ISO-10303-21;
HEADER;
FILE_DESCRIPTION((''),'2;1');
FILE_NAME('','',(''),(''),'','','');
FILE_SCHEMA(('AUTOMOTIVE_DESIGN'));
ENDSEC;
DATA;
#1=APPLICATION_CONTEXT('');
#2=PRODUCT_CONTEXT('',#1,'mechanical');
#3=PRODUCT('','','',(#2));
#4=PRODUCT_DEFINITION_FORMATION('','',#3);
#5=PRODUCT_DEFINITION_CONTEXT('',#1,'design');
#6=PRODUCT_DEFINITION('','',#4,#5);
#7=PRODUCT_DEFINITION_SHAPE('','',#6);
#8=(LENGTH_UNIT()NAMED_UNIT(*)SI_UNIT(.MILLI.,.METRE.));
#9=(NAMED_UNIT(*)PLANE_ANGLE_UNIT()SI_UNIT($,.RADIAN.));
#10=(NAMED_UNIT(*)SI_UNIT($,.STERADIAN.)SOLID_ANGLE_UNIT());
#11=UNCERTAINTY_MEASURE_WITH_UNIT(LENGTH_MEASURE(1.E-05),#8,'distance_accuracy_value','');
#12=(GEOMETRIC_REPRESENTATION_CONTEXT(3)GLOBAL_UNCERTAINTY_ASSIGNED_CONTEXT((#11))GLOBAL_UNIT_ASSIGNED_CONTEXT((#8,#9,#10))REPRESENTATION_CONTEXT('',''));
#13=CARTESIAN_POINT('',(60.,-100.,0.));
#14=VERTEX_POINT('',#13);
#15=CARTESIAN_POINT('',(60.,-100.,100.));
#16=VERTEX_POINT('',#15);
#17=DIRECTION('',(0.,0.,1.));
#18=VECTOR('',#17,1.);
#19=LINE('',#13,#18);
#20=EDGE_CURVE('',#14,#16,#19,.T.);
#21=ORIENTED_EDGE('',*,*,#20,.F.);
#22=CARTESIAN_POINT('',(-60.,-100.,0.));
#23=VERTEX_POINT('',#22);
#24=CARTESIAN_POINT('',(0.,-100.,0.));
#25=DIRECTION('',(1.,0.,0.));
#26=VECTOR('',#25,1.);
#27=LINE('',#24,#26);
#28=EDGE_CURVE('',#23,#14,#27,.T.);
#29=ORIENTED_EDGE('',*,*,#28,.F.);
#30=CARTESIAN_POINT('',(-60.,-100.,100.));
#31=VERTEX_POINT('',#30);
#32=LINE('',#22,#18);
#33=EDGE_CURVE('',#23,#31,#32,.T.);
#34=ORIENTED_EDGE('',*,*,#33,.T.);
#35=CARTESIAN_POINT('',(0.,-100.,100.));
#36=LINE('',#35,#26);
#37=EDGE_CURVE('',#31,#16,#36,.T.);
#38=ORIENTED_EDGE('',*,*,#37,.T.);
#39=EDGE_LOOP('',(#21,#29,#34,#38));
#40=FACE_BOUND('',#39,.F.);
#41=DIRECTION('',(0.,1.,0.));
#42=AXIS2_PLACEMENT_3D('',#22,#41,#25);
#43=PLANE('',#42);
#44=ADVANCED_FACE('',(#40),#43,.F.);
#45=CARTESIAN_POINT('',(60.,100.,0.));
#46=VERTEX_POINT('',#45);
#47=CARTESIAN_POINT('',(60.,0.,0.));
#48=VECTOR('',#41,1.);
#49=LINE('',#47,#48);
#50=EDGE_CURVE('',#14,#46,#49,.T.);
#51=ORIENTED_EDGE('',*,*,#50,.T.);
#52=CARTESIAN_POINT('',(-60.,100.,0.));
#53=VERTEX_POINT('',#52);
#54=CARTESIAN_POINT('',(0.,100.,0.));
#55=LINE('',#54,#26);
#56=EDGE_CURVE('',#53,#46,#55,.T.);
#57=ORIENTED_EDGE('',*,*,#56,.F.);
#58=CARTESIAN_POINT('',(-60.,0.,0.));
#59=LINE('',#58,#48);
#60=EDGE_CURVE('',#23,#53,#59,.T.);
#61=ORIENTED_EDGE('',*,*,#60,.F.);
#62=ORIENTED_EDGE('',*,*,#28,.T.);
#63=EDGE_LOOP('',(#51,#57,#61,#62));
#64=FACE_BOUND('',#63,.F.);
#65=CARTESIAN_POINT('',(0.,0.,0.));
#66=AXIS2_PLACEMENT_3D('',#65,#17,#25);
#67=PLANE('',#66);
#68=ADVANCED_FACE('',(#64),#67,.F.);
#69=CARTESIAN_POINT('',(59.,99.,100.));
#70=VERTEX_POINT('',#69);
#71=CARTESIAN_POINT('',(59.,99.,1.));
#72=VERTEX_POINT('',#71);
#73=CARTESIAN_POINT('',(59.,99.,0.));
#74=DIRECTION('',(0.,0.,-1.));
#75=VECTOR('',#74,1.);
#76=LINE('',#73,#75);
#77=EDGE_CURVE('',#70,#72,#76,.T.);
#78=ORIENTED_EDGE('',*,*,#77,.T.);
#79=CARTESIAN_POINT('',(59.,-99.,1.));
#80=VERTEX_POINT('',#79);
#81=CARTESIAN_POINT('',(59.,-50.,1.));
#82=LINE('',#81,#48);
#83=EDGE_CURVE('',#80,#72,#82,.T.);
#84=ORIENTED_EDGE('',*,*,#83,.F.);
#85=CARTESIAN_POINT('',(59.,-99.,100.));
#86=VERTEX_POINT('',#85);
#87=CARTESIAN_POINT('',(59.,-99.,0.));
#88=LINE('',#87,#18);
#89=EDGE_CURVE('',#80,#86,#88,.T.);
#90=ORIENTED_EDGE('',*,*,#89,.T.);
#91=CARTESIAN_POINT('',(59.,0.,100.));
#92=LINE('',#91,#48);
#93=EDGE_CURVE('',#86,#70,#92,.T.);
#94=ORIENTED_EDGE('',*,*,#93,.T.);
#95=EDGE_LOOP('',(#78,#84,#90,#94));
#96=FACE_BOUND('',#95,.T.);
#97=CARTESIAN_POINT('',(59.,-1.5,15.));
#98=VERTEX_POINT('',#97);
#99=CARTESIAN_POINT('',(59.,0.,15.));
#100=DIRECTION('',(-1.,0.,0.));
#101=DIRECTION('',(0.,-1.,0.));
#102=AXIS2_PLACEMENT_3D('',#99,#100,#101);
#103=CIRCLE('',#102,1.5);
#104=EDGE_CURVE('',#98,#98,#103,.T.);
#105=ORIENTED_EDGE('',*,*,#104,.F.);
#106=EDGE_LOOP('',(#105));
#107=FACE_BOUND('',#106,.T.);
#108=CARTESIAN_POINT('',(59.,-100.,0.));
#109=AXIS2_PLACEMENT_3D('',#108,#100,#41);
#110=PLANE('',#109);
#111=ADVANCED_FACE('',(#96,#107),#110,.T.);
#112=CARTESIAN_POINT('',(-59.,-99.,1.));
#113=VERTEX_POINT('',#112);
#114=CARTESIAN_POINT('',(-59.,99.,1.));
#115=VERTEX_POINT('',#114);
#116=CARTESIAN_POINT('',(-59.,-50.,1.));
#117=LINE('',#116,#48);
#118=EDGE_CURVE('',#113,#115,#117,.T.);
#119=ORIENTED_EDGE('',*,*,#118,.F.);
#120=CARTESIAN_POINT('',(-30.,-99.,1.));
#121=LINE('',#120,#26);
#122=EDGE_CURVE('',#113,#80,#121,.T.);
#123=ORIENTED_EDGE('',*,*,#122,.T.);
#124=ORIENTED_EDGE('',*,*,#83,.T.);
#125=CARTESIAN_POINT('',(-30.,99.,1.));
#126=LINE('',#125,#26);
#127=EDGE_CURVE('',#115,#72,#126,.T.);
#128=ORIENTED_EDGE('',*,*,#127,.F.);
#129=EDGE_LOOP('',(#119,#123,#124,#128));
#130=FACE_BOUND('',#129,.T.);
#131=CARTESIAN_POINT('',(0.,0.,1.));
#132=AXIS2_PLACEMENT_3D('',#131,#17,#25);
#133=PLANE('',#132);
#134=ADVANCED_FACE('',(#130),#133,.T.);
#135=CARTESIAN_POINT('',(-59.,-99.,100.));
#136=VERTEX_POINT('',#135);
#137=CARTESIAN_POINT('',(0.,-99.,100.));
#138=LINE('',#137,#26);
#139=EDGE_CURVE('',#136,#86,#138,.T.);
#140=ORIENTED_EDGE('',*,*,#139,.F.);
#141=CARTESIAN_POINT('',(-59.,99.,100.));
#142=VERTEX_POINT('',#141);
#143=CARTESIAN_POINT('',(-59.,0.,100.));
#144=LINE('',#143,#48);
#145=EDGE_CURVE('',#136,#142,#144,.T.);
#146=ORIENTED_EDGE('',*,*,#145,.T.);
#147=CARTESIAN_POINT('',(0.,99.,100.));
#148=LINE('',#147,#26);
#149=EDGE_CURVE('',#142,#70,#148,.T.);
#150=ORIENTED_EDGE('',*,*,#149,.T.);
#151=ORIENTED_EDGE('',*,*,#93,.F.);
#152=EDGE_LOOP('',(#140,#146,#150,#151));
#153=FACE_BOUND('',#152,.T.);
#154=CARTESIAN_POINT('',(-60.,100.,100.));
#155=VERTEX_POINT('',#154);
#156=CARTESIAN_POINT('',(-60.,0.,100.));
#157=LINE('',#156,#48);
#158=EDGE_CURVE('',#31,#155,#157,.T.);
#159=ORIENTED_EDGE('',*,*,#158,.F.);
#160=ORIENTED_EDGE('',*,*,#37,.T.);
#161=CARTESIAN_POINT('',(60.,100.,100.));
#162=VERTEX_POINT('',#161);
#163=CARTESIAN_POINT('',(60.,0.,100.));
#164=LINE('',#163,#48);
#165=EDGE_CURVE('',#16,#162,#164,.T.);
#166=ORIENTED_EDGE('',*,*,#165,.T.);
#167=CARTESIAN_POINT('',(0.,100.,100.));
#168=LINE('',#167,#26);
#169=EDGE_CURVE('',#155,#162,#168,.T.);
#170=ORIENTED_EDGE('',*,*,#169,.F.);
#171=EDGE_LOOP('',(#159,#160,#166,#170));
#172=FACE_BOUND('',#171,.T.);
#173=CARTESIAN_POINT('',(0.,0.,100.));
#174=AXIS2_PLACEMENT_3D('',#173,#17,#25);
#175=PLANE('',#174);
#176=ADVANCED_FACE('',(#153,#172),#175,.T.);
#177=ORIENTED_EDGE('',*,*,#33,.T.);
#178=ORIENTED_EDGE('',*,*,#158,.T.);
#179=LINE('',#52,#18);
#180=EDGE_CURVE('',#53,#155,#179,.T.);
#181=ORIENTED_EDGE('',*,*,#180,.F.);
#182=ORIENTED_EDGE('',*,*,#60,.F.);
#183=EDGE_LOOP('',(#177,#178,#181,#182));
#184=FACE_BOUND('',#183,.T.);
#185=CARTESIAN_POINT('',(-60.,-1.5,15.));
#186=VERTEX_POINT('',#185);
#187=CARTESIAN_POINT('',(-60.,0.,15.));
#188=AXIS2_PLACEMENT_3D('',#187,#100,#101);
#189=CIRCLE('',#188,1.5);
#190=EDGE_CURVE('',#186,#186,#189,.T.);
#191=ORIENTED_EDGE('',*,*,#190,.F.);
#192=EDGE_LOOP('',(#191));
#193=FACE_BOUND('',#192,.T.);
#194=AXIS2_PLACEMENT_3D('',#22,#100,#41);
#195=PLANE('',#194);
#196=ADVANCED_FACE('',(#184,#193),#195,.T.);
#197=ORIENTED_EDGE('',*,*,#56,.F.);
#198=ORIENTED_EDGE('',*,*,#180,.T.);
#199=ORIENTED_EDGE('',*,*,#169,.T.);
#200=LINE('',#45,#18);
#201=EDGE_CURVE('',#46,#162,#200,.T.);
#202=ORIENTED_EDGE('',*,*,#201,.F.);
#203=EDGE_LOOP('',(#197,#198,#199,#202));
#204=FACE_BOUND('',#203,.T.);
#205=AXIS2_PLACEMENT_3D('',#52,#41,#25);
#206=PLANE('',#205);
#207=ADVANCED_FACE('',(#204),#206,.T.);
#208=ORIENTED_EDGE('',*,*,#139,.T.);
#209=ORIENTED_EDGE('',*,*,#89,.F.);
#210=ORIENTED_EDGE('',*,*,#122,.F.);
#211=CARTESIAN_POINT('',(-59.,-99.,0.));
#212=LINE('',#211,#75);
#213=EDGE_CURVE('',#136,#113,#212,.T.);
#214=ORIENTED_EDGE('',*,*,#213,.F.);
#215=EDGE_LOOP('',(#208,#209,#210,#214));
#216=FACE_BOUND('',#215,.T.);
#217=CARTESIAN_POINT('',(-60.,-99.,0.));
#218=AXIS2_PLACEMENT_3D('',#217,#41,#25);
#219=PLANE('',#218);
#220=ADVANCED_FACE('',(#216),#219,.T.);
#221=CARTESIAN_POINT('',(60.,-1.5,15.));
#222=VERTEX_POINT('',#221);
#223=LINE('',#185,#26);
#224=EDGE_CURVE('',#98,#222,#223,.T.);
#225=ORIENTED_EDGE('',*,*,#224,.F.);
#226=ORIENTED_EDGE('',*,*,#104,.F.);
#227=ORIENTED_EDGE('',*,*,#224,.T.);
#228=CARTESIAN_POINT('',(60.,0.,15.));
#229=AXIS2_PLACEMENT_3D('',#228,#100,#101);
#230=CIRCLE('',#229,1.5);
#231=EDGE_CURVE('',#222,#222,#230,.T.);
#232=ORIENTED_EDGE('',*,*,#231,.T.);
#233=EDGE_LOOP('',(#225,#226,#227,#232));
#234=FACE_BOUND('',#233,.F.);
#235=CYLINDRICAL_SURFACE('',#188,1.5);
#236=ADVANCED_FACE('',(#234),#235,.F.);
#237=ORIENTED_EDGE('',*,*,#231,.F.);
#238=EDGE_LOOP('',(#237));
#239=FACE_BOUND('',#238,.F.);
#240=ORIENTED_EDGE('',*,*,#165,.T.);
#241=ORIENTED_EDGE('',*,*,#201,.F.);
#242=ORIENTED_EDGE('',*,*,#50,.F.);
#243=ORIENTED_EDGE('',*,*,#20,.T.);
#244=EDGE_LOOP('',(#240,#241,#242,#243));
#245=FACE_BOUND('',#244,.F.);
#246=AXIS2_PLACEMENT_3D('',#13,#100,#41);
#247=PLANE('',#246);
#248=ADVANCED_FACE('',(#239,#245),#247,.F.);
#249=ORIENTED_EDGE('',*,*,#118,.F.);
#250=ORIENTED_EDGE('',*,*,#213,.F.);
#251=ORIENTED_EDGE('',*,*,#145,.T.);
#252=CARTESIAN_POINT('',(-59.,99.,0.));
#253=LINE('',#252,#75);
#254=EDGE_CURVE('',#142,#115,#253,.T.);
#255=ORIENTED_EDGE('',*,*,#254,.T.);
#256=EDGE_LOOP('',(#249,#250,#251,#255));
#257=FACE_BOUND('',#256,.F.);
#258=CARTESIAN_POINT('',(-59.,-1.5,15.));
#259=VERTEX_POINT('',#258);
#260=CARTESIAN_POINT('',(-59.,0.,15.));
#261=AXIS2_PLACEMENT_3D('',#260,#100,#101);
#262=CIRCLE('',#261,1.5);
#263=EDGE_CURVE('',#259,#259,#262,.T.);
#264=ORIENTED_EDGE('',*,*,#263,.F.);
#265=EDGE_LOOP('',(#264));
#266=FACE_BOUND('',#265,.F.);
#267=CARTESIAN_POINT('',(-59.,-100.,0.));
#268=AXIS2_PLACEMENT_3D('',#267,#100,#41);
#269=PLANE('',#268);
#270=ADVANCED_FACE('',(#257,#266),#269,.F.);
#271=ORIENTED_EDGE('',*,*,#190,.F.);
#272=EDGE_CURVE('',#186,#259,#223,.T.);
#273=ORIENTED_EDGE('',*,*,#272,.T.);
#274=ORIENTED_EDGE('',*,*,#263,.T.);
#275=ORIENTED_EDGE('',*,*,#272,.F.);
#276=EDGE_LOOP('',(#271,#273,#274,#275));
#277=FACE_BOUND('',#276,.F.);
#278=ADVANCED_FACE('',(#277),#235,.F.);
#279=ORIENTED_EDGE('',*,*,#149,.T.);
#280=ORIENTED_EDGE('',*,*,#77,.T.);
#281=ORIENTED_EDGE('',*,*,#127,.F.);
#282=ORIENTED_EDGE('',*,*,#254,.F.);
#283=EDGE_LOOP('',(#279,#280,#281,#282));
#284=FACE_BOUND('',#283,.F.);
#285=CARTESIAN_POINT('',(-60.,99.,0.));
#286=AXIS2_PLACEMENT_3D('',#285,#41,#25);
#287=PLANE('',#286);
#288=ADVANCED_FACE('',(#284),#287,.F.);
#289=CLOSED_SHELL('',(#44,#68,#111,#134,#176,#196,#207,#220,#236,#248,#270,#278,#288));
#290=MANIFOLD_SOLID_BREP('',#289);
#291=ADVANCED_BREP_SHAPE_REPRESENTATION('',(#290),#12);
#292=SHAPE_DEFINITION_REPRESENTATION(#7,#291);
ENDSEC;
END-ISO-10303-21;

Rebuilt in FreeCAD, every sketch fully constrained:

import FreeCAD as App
import Part
import Sketcher
from FreeCAD import Vector
Q = App.Units.Quantity


def faces_at(feature, points):
    """Names of the faces that lie closest to the given points."""
    faces = feature.Shape.Faces
    near = lambda p: min(range(len(faces)), key=lambda i: faces[i].distToShape(Part.Vertex(*p))[0])
    return sorted({f"Face{near(p) + 1}" for p in points})


def add_polygon(sketch, points):
    """Adds a closed chain of lines whose ends are joined by coincident constraints."""
    first, n = sketch.GeometryCount, len(points)
    for a, b in zip(points, points[1:] + points[:1]):
        sketch.addGeometry(Part.LineSegment(App.Vector(*a, 0), App.Vector(*b, 0)), False)
    for i in range(n):
        sketch.addConstraint(Sketcher.Constraint("Coincident", first + i, 2, first + (i + 1) % n, 1))

doc = App.newDocument("Part")
params = doc.addObject("Spreadsheet::Sheet", "Params")
for row, (alias, value) in enumerate([
    ("sketch1_width", "120 mm"),
    ("sketch1_height", "200 mm"),
    ("pad1_length", "100 mm"),
    ("thickness_wall", "1 mm"),
    ("sketch2_diameter", "3 mm"),
    ("pocket1_length", "130 mm"),
], start=1):
    params.set(f"A{row}", alias)
    params.set(f"B{row}", "=" + value)
    params.setAlias(f"B{row}", alias)

body = doc.addObject("PartDesign::Body", "Body")

# Sketch on XY plane
sketch1 = doc.addObject("Sketcher::SketchObject", "Sketch")
body.addObject(sketch1)
sketch1.AttachmentSupport = (doc.XY_Plane, [""])
sketch1.MapMode = "FlatFace"
add_polygon(sketch1, [(-60, 100), (-60, -100), (60, -100), (60, 100)])  # lines 0-3
sketch1.addConstraint(Sketcher.Constraint("Vertical", 0))
sketch1.addConstraint(Sketcher.Constraint("Horizontal", 1))
sketch1.addConstraint(Sketcher.Constraint("Vertical", 2))
sketch1.addConstraint(Sketcher.Constraint("Horizontal", 3))
sketch1.addConstraint(Sketcher.Constraint("Symmetric", 0, 2, 2, 2, -1, 1))
sketch1.addConstraint(Sketcher.Constraint("DistanceX", 1, 1, 1, 2, Q("120 mm")))
sketch1.addConstraint(Sketcher.Constraint("DistanceY", 0, 2, 0, 1, Q("200 mm")))
sketch1.setExpression("Constraints[9]", "Params.sketch1_width")
sketch1.setExpression("Constraints[10]", "Params.sketch1_height")
pad1 = doc.addObject("PartDesign::Pad", "Pad")
body.addObject(pad1)
pad1.Profile = sketch1
pad1.setExpression("Length", "Params.pad1_length")
doc.recompute()

thickness = doc.addObject("PartDesign::Thickness", "Thickness")
body.addObject(thickness)
thickness.Base = (pad1, faces_at(pad1, [(0, 0, 100)]))
thickness.setExpression("Value", "Params.thickness_wall")
thickness.Reversed = True
thickness.Join = "Arc"

# Sketch on YZ plane
sketch2 = doc.addObject("Sketcher::SketchObject", "Sketch001")
body.addObject(sketch2)
sketch2.AttachmentSupport = (doc.YZ_Plane, [""])
sketch2.MapMode = "FlatFace"
sketch2.AttachmentOffset = App.Placement(Vector(0, 0, -60), App.Rotation())
sketch2.addGeometry(Part.Circle(Vector(0, 15, 0), Vector(0, 0, 1), 1.5), False)
sketch2.addConstraint(Sketcher.Constraint("PointOnObject", 0, 3, -2))
sketch2.addConstraint(Sketcher.Constraint("Diameter", 0, Q("3 mm")))
sketch2.addConstraint(Sketcher.Constraint("DistanceY", -1, 1, 0, 3, Q("15 mm")))
sketch2.setExpression("Constraints[1]", "Params.sketch2_diameter")
pocket1 = doc.addObject("PartDesign::Pocket", "Pocket")
body.addObject(pocket1)
pocket1.Profile = sketch2
pocket1.setExpression("Length", "Params.pocket1_length")
pocket1.Reversed = True

doc.recompute()
